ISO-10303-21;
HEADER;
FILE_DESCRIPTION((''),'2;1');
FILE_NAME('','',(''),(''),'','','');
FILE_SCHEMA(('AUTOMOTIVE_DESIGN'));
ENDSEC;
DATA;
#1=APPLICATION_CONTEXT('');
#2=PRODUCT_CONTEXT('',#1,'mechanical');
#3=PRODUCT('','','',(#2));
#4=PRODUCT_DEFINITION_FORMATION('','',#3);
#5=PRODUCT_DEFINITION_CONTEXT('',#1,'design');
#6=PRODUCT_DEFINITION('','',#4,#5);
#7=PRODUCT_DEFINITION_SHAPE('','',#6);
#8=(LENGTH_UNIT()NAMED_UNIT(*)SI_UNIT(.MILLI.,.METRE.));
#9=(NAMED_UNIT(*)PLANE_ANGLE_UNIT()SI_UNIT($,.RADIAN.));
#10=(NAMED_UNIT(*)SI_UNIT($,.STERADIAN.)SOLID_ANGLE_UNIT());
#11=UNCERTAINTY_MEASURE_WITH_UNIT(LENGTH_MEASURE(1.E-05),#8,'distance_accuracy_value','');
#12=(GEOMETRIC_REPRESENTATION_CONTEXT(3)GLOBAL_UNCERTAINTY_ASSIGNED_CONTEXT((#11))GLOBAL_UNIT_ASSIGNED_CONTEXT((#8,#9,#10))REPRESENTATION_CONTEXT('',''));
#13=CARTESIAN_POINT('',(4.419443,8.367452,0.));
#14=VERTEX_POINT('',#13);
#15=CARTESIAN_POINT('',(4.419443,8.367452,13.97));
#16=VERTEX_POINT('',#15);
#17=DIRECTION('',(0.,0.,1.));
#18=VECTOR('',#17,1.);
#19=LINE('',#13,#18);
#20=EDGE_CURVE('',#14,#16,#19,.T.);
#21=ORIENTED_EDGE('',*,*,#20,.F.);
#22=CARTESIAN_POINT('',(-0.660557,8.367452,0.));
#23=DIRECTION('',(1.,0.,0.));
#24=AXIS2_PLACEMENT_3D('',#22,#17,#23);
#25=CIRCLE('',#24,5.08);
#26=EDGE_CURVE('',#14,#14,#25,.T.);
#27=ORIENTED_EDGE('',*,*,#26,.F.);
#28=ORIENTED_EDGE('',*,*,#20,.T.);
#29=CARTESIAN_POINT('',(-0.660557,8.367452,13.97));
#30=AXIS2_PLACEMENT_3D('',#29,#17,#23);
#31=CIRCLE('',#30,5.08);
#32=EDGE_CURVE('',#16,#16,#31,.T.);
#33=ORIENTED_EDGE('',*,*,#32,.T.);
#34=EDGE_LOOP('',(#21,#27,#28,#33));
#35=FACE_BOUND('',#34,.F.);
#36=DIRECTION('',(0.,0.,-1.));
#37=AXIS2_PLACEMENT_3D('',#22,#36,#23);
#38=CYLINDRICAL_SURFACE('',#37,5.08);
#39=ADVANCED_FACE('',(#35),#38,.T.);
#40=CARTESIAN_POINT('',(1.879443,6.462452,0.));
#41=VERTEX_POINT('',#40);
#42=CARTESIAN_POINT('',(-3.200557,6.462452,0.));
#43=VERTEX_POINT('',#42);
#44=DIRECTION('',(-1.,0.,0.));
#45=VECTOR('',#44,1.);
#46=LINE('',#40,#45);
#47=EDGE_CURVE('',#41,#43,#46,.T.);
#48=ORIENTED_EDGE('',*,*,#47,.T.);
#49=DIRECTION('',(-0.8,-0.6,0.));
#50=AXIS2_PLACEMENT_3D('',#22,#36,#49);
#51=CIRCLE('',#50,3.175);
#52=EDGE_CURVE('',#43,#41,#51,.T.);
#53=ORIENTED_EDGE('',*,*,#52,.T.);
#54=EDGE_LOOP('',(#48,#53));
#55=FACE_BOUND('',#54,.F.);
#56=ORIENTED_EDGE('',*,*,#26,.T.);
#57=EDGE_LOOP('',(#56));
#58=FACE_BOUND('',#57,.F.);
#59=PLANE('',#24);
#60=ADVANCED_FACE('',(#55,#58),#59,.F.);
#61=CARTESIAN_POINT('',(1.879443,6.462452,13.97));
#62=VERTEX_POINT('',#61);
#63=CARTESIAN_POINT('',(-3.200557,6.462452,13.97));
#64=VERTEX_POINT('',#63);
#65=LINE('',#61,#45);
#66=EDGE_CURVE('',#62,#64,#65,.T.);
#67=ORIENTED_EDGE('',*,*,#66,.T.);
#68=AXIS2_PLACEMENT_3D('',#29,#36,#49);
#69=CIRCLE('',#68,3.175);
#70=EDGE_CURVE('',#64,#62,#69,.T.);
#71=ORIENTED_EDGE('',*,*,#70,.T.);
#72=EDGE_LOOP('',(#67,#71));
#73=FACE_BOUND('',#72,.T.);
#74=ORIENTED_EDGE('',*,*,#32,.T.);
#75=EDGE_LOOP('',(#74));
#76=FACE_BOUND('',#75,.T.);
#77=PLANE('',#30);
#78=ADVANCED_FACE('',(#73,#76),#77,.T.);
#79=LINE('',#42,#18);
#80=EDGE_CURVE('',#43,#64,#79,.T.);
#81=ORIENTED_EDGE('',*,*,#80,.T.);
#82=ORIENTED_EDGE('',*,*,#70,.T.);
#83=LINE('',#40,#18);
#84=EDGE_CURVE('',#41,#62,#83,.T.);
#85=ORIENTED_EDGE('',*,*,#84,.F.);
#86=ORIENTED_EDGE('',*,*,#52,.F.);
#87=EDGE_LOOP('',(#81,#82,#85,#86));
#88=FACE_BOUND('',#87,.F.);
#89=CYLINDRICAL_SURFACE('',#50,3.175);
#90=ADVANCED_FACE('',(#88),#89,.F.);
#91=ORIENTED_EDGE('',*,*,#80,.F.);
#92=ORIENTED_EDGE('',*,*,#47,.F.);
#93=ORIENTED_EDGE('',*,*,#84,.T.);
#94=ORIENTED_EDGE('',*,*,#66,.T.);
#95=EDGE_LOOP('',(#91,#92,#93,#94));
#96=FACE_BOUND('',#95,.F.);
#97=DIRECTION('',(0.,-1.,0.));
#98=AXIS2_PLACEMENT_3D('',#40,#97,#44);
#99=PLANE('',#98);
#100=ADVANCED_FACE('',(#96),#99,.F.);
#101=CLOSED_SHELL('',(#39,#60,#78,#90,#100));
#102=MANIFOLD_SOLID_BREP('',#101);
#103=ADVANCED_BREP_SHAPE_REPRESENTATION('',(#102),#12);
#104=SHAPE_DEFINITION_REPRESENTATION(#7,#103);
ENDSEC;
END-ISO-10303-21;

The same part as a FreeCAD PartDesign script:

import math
import FreeCAD as App
import Part
import Sketcher
Q = App.Units.Quantity

doc = App.newDocument("Part")
body = doc.addObject("PartDesign::Body", "Body")

sketch1 = body.newObject("Sketcher::SketchObject", "Sketch")
sketch1.AttachmentSupport = (doc.getObject("XY_Plane"), [""])
sketch1.MapMode = "FlatFace"
sketch1.addGeometry([
    Part.Circle(App.Vector(-0.7, 8.4, 0), App.Vector(0, 0, 1), 5.1),
    Part.LineSegment(App.Vector(1.9, 6.5, 0), App.Vector(-3.2, 6.5, 0)),
    Part.ArcOfCircle(Part.Circle(App.Vector(-0.7, 8.4, 0), App.Vector(0, 0, 1), 3.2), math.radians(-37), math.radians(217)),
], False)
sketch1.addConstraint([
    Sketcher.Constraint("Coincident", 1, 1, 2, 1),
    Sketcher.Constraint("Coincident", 2, 2, 1, 2),
    Sketcher.Constraint("Horizontal", 1),
    Sketcher.Constraint("Coincident", 2, 3, 0, 3),
    Sketcher.Constraint("Diameter", 0, Q("0.4 in")),
    Sketcher.Constraint("DistanceX", 1, 2, 1, 1, Q("0.2 in")),
    Sketcher.Constraint("Radius", 2, Q("0.125 in")),
    Sketcher.Constraint("DistanceX", 0, 3, -1, 1, 0.660557),
    Sketcher.Constraint("DistanceY", -1, 1, 0, 3, 8.367452),
])
pad1 = body.newObject("PartDesign::Pad", "Pad")
pad1.Profile = sketch1
pad1.Length = Q("0.55 in")

doc.recompute()
